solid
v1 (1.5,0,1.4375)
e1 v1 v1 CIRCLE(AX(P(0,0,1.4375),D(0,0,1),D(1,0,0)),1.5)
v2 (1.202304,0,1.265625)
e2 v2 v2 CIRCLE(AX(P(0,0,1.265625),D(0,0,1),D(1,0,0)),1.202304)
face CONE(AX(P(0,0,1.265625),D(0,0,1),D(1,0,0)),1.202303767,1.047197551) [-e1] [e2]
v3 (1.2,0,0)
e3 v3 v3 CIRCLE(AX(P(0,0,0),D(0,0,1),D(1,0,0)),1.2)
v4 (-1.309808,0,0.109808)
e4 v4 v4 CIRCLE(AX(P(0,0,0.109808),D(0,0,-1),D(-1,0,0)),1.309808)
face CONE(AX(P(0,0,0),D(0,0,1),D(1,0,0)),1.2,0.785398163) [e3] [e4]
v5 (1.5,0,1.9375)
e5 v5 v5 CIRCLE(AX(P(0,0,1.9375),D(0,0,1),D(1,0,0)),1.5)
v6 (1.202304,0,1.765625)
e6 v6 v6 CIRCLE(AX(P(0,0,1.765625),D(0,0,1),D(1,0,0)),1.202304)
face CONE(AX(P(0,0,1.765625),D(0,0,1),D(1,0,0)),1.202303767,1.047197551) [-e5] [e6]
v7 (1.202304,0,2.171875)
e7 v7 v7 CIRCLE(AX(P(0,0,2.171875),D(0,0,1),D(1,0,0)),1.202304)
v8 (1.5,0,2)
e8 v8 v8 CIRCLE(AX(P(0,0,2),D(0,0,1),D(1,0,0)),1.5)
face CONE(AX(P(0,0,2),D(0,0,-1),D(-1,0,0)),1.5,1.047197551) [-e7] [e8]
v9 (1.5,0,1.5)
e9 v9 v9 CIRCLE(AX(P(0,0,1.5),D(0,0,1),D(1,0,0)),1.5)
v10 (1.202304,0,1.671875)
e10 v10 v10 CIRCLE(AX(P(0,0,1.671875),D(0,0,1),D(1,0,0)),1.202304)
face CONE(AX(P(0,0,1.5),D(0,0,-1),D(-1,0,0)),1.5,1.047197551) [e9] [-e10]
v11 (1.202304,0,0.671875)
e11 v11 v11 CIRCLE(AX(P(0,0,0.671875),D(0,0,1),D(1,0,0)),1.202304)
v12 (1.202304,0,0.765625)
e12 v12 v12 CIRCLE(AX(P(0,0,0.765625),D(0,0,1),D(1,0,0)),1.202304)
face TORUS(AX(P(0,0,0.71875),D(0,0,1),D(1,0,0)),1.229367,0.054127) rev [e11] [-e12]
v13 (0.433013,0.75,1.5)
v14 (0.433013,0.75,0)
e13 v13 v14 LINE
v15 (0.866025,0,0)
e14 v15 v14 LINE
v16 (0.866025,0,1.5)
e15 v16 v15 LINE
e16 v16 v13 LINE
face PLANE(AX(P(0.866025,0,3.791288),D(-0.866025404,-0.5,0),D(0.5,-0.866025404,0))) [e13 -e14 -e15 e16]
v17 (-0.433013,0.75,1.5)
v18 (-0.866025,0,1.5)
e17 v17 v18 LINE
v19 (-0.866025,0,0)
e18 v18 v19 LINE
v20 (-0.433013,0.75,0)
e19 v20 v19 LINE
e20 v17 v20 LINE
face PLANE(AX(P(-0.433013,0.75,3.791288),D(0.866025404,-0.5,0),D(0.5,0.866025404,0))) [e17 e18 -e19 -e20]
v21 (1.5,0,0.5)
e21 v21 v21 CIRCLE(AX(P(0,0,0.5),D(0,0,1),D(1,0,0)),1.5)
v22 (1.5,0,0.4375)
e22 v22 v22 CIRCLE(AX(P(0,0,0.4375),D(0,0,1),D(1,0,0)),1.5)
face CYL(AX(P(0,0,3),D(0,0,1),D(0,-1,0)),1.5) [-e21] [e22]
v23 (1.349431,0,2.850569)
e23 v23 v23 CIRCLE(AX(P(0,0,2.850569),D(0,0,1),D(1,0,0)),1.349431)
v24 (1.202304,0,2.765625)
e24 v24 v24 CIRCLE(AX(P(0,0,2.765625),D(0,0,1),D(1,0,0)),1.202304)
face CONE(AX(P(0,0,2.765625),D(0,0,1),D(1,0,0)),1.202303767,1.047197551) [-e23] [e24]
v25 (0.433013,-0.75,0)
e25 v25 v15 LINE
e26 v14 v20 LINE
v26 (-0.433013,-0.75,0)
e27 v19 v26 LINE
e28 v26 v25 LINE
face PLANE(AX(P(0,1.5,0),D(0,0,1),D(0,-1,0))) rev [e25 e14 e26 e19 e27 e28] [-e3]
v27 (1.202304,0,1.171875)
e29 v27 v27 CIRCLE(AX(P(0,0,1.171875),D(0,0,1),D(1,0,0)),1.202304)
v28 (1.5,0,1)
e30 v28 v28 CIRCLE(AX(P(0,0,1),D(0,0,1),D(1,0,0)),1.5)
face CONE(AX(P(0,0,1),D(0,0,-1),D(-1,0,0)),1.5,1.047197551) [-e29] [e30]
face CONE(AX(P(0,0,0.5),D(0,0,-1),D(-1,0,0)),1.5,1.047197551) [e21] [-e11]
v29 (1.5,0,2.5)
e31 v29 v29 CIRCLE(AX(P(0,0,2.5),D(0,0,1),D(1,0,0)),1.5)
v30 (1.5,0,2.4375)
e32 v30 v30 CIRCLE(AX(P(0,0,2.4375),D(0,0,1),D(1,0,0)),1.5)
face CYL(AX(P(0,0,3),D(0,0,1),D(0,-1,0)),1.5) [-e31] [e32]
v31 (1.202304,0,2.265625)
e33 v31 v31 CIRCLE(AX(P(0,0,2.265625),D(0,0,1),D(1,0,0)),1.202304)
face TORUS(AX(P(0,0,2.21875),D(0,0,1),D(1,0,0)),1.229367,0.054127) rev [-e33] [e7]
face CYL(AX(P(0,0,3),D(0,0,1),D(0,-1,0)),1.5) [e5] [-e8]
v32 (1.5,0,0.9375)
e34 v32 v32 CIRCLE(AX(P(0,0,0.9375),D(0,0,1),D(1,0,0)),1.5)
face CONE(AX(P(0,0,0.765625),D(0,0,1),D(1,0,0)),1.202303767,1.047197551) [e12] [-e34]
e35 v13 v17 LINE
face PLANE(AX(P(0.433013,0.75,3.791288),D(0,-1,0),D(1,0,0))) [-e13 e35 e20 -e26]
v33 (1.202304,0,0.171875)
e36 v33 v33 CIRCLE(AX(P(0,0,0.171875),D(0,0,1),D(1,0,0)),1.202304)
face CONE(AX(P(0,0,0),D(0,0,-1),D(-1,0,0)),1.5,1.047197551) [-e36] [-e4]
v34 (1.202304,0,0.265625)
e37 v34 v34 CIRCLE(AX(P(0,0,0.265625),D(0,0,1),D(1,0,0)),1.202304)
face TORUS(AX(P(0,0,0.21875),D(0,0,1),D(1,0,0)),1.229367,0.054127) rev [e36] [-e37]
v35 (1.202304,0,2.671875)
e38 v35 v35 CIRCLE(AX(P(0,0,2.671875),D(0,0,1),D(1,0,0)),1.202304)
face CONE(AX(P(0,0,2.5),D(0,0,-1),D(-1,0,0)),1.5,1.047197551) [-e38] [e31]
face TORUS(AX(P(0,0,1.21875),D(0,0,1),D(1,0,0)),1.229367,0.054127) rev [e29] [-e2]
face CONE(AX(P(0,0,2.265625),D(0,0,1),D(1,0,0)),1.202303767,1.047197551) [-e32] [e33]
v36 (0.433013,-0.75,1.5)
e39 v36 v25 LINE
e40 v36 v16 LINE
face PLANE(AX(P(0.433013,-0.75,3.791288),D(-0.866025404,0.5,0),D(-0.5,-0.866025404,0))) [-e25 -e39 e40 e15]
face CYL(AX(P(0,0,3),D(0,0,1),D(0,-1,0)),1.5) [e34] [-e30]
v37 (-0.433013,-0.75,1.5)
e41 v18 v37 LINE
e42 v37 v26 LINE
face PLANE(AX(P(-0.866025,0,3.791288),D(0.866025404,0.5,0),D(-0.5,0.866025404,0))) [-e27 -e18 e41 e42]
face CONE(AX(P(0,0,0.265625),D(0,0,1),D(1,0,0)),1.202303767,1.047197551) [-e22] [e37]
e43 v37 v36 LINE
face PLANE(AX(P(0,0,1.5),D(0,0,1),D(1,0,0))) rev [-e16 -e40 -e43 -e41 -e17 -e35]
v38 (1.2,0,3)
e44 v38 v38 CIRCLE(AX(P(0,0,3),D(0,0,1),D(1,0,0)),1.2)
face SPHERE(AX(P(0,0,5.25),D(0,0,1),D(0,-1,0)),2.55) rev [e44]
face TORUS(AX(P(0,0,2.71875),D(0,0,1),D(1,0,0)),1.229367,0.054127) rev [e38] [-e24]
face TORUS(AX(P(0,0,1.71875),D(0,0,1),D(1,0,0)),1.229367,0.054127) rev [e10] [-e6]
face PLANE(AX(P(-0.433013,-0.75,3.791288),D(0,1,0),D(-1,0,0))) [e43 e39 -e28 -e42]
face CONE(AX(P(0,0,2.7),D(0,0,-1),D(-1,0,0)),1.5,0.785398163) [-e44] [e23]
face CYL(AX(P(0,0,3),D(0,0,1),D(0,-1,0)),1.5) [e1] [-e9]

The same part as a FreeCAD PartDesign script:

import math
import FreeCAD as App
import Part
import Sketcher
from FreeCAD import Vector
Q = App.Units.Quantity

doc = App.newDocument("Part")
body = doc.addObject("PartDesign::Body", "Body")

# Sketch on YZ plane
sketch1 = body.newObject("Sketcher::SketchObject", "Sketch")
sketch1.AttachmentSupport = (doc.getObject("YZ_Plane"), [""])
sketch1.MapMode = "FlatFace"
sketch1.addGeometry([
    Part.LineSegment(Vector(1.5, 3, 0), Vector(0, 3, 0)),
    Part.LineSegment(Vector(0, 3, 0), Vector(0, 0, 0)),
    Part.LineSegment(Vector(0, 0, 0), Vector(1.5, 0, 0)),
    Part.LineSegment(Vector(1.5, 0, 0), Vector(1.5, 3, 0)),
], False)
sketch1.addConstraint([
    Sketcher.Constraint("Coincident", 0, 2, 1, 1),
    Sketcher.Constraint("Coincident", 1, 2, 2, 1),
    Sketcher.Constraint("Coincident", 2, 2, 3, 1),
    Sketcher.Constraint("Coincident", 3, 2, 0, 1),
    Sketcher.Constraint("Horizontal", 0),
    Sketcher.Constraint("Vertical", 1),
    Sketcher.Constraint("Horizontal", 2),
    Sketcher.Constraint("Vertical", 3),
    Sketcher.Constraint("Coincident", 1, 2, -1, 1),
    Sketcher.Constraint("DistanceY", 1, 2, 1, 1, Q("3 mm")),
    Sketcher.Constraint("DistanceX", 0, 2, 0, 1, Q("1.5 mm")),
])
revolution = body.newObject("PartDesign::Revolution", "Revolution")
revolution.Profile = sketch1
revolution.ReferenceAxis = (sketch1, ["V_Axis"])
revolution.Angle = 360

# Sketch on YZ plane
sketch2 = body.newObject("Sketcher::SketchObject", "Sketch001")
sketch2.AttachmentSupport = (doc.getObject("YZ_Plane"), [""])
sketch2.MapMode = "FlatFace"
sketch2.addGeometry([
    Part.LineSegment(Vector(-1.2, 3, 0), Vector(-1.5, 3, 0)),
    Part.LineSegment(Vector(-1.5, 3, 0), Vector(-1.5, 2.7, 0)),
    Part.LineSegment(Vector(-1.5, 2.7, 0), Vector(-1.2, 3, 0)),
], False)
sketch2.addConstraint([
    Sketcher.Constraint("Coincident", 0, 2, 1, 1),
    Sketcher.Constraint("Coincident", 1, 2, 2, 1),
    Sketcher.Constraint("Coincident", 2, 2, 0, 1),
    Sketcher.Constraint("Horizontal", 0),
    Sketcher.Constraint("Vertical", 1),
    Sketcher.Constraint("Equal", 0, 1),
    Sketcher.Constraint("DistanceX", 0, 2, 0, 1, Q("0.3 mm")),
    Sketcher.Constraint("DistanceY", -1, 1, 0, 2, Q("3 mm")),
    Sketcher.Constraint("DistanceX", 0, 2, -1, 1, Q("1.5 mm")),
])
groove = body.newObject("PartDesign::Groove", "Groove")
groove.Profile = sketch2
groove.ReferenceAxis = (sketch2, ["V_Axis"])
groove.Angle = 360

# Sketch on YZ plane
sketch3 = body.newObject("Sketcher::SketchObject", "Sketch002")
sketch3.AttachmentSupport = (doc.getObject("YZ_Plane"), [""])
sketch3.MapMode = "FlatFace"
sketch3.addGeometry([
    Part.LineSegment(Vector(-1.5, 0.3, 0), Vector(-1.5, 0, 0)),
    Part.LineSegment(Vector(-1.5, 0, 0), Vector(-1.2, 0, 0)),
    Part.LineSegment(Vector(-1.2, 0, 0), Vector(-1.5, 0.3, 0)),
], False)
sketch3.addConstraint([
    Sketcher.Constraint("Coincident", 0, 2, 1, 1),
    Sketcher.Constraint("Coincident", 1, 2, 2, 1),
    Sketcher.Constraint("Coincident", 2, 2, 0, 1),
    Sketcher.Constraint("Vertical", 0),
    Sketcher.Constraint("Horizontal", 1),
    Sketcher.Constraint("PointOnObject", 0, 2, -1),
    Sketcher.Constraint("Equal", 1, 0),
    Sketcher.Constraint("DistanceX", 1, 1, 1, 2, Q("0.3 mm")),
    Sketcher.Constraint("DistanceX", 0, 2, -1, 1, Q("1.5 mm")),
])
groove2 = body.newObject("PartDesign::Groove", "Groove001")
groove2.Profile = sketch3
groove2.ReferenceAxis = (sketch3, ["V_Axis"])
groove2.Angle = 360

# Sketch on YZ plane
sketch4 = body.newObject("Sketcher::SketchObject", "Sketch003")
sketch4.AttachmentSupport = (doc.getObject("YZ_Plane"), [""])
sketch4.MapMode = "FlatFace"
sketch4.addGeometry([
    Part.LineSegment(Vector(-1.5, 0.44, 0), Vector(-1.5, 0, 0)),
    Part.LineSegment(Vector(-1.5, 0, 0), Vector(-1.2, 0.17, 0)),
    Part.ArcOfCircle(Part.Circle(Vector(-1.23, 0.22, 0), Vector(0, 0, 1), 0.05), math.radians(-60), math.radians(60)),
    Part.LineSegment(Vector(-1.2, 0.27, 0), Vector(-1.5, 0.44, 0)),
], False)
sketch4.addConstraint([
    Sketcher.Constraint("Coincident", 0, 2, 1, 1),
    Sketcher.Constraint("Tangent", 1, 2, 2, 1),
    Sketcher.Constraint("Tangent", 2, 2, 3, 1),
    Sketcher.Constraint("Coincident", 3, 2, 0, 1),
    Sketcher.Constraint("Vertical", 0),
    Sketcher.Constraint("PointOnObject", 0, 2, -1),
    Sketcher.Constraint("Vertical", 1, 2, 2, 2),
    Sketcher.Constraint("Angle", 1, Q("30 deg")),
    Sketcher.Constraint("DistanceX", 0, 2, -1, 1, Q("1.5 mm")),
    Sketcher.Constraint("DistanceY", 0, 2, 0, 1, Q("0.4375 mm")),
    Sketcher.Constraint("Radius", 2, Q("0.054127 mm")),
])
groove3 = body.newObject("PartDesign::Groove", "Groove002")
groove3.Profile = sketch4
groove3.ReferenceAxis = (sketch4, ["V_Axis"])
groove3.Angle = 360
doc.recompute()

linearpattern = body.newObject("PartDesign::LinearPattern", "LinearPattern")
linearpattern.Originals = [groove3]
linearpattern.Direction = (doc.getObject("Z_Axis"), [""])
linearpattern.Mode = "offset"
linearpattern.Offset = 0.5
linearpattern.Occurrences = 7
body.Tip = linearpattern

# Sketch on XY plane
sketch5 = body.newObject("Sketcher::SketchObject", "Sketch004")
sketch5.AttachmentSupport = (doc.getObject("XY_Plane"), [""])
sketch5.MapMode = "FlatFace"
sketch5.addGeometry([
    Part.LineSegment(Vector(0.4, 0.8, 0), Vector(-0.4, 0.8, 0)),  # 0
    Part.LineSegment(Vector(-0.4, 0.8, 0), Vector(-0.9, 0, 0)),  # 1
    Part.LineSegment(Vector(-0.9, 0, 0), Vector(-0.4, -0.8, 0)),  # 2
    Part.LineSegment(Vector(-0.4, -0.8, 0), Vector(0.4, -0.8, 0)),  # 3
    Part.LineSegment(Vector(0.4, -0.8, 0), Vector(0.9, 0, 0)),  # 4
    Part.LineSegment(Vector(0.9, 0, 0), Vector(0.4, 0.8, 0)),  # 5
], False)
sketch5.addConstraint([
    Sketcher.Constraint("Coincident", 0, 2, 1, 1),
    Sketcher.Constraint("Coincident", 1, 2, 2, 1),
    Sketcher.Constraint("Coincident", 2, 2, 3, 1),
    Sketcher.Constraint("Coincident", 3, 2, 4, 1),
    Sketcher.Constraint("Coincident", 4, 2, 5, 1),
    Sketcher.Constraint("Coincident", 5, 2, 0, 1),
    Sketcher.Constraint("Horizontal", 0),
    Sketcher.Constraint("Horizontal", 3),
    Sketcher.Constraint("Symmetric", 0, 2, 3, 2, -1, 1),
    Sketcher.Constraint("Symmetric", 1, 2, 4, 2, -1, 1),
    Sketcher.Constraint("PointOnObject", 1, 2, -1),
    Sketcher.Constraint("Parallel", 2, 5),
    Sketcher.Constraint("Vertical", 0, 2, 2, 2),
    Sketcher.Constraint("Angle", 1, Q("-120 deg")),
    Sketcher.Constraint("DistanceY", 2, 2, 0, 2, Q("1.5 mm")),
    Sketcher.Constraint("DistanceX", 0, 2, 0, 1, Q("0.866025 mm")),
])
pocket1 = body.newObject("PartDesign::Pocket", "Pocket")
pocket1.Profile = sketch5
pocket1.Length = 1.5
pocket1.Reversed = True

# Sketch on YZ plane
sketch6 = body.newObject("Sketcher::SketchObject", "Sketch005")
sketch6.AttachmentSupport = (doc.getObject("YZ_Plane"), [""])
sketch6.MapMode = "FlatFace"
sketch6.addGeometry([
    Part.LineSegment(Vector(0, 3, 0), Vector(-1.2, 3, 0)),
    Part.ArcOfCircle(Part.Circle(Vector(0, 5.25, 0), Vector(0, 0, 1), 2.55), math.radians(-118), math.radians(-90)),
    Part.LineSegment(Vector(0, 2.7, 0), Vector(0, 3, 0)),
], False)
sketch6.addConstraint([
    Sketcher.Constraint("Coincident", 0, 2, 1, 1),
    Sketcher.Constraint("Coincident", 1, 2, 2, 1),
    Sketcher.Constraint("Coincident", 2, 2, 0, 1),
    Sketcher.Constraint("Horizontal", 0),
    Sketcher.Constraint("Vertical", 2),
    Sketcher.Constraint("PointOnObject", 1, 3, -2),
    Sketcher.Constraint("PointOnObject", 1, 2, -2),
    Sketcher.Constraint("Radius", 1, Q("2.55 mm")),
    Sketcher.Constraint("DistanceX", 0, 2, 0, 1, Q("1.2 mm")),
    Sketcher.Constraint("DistanceY", -1, 1, 0, 2, Q("3 mm")),
])
groove4 = body.newObject("PartDesign::Groove", "Groove003")
groove4.Profile = sketch6
groove4.ReferenceAxis = (sketch6, ["V_Axis"])
groove4.Angle = 360

doc.recompute()
